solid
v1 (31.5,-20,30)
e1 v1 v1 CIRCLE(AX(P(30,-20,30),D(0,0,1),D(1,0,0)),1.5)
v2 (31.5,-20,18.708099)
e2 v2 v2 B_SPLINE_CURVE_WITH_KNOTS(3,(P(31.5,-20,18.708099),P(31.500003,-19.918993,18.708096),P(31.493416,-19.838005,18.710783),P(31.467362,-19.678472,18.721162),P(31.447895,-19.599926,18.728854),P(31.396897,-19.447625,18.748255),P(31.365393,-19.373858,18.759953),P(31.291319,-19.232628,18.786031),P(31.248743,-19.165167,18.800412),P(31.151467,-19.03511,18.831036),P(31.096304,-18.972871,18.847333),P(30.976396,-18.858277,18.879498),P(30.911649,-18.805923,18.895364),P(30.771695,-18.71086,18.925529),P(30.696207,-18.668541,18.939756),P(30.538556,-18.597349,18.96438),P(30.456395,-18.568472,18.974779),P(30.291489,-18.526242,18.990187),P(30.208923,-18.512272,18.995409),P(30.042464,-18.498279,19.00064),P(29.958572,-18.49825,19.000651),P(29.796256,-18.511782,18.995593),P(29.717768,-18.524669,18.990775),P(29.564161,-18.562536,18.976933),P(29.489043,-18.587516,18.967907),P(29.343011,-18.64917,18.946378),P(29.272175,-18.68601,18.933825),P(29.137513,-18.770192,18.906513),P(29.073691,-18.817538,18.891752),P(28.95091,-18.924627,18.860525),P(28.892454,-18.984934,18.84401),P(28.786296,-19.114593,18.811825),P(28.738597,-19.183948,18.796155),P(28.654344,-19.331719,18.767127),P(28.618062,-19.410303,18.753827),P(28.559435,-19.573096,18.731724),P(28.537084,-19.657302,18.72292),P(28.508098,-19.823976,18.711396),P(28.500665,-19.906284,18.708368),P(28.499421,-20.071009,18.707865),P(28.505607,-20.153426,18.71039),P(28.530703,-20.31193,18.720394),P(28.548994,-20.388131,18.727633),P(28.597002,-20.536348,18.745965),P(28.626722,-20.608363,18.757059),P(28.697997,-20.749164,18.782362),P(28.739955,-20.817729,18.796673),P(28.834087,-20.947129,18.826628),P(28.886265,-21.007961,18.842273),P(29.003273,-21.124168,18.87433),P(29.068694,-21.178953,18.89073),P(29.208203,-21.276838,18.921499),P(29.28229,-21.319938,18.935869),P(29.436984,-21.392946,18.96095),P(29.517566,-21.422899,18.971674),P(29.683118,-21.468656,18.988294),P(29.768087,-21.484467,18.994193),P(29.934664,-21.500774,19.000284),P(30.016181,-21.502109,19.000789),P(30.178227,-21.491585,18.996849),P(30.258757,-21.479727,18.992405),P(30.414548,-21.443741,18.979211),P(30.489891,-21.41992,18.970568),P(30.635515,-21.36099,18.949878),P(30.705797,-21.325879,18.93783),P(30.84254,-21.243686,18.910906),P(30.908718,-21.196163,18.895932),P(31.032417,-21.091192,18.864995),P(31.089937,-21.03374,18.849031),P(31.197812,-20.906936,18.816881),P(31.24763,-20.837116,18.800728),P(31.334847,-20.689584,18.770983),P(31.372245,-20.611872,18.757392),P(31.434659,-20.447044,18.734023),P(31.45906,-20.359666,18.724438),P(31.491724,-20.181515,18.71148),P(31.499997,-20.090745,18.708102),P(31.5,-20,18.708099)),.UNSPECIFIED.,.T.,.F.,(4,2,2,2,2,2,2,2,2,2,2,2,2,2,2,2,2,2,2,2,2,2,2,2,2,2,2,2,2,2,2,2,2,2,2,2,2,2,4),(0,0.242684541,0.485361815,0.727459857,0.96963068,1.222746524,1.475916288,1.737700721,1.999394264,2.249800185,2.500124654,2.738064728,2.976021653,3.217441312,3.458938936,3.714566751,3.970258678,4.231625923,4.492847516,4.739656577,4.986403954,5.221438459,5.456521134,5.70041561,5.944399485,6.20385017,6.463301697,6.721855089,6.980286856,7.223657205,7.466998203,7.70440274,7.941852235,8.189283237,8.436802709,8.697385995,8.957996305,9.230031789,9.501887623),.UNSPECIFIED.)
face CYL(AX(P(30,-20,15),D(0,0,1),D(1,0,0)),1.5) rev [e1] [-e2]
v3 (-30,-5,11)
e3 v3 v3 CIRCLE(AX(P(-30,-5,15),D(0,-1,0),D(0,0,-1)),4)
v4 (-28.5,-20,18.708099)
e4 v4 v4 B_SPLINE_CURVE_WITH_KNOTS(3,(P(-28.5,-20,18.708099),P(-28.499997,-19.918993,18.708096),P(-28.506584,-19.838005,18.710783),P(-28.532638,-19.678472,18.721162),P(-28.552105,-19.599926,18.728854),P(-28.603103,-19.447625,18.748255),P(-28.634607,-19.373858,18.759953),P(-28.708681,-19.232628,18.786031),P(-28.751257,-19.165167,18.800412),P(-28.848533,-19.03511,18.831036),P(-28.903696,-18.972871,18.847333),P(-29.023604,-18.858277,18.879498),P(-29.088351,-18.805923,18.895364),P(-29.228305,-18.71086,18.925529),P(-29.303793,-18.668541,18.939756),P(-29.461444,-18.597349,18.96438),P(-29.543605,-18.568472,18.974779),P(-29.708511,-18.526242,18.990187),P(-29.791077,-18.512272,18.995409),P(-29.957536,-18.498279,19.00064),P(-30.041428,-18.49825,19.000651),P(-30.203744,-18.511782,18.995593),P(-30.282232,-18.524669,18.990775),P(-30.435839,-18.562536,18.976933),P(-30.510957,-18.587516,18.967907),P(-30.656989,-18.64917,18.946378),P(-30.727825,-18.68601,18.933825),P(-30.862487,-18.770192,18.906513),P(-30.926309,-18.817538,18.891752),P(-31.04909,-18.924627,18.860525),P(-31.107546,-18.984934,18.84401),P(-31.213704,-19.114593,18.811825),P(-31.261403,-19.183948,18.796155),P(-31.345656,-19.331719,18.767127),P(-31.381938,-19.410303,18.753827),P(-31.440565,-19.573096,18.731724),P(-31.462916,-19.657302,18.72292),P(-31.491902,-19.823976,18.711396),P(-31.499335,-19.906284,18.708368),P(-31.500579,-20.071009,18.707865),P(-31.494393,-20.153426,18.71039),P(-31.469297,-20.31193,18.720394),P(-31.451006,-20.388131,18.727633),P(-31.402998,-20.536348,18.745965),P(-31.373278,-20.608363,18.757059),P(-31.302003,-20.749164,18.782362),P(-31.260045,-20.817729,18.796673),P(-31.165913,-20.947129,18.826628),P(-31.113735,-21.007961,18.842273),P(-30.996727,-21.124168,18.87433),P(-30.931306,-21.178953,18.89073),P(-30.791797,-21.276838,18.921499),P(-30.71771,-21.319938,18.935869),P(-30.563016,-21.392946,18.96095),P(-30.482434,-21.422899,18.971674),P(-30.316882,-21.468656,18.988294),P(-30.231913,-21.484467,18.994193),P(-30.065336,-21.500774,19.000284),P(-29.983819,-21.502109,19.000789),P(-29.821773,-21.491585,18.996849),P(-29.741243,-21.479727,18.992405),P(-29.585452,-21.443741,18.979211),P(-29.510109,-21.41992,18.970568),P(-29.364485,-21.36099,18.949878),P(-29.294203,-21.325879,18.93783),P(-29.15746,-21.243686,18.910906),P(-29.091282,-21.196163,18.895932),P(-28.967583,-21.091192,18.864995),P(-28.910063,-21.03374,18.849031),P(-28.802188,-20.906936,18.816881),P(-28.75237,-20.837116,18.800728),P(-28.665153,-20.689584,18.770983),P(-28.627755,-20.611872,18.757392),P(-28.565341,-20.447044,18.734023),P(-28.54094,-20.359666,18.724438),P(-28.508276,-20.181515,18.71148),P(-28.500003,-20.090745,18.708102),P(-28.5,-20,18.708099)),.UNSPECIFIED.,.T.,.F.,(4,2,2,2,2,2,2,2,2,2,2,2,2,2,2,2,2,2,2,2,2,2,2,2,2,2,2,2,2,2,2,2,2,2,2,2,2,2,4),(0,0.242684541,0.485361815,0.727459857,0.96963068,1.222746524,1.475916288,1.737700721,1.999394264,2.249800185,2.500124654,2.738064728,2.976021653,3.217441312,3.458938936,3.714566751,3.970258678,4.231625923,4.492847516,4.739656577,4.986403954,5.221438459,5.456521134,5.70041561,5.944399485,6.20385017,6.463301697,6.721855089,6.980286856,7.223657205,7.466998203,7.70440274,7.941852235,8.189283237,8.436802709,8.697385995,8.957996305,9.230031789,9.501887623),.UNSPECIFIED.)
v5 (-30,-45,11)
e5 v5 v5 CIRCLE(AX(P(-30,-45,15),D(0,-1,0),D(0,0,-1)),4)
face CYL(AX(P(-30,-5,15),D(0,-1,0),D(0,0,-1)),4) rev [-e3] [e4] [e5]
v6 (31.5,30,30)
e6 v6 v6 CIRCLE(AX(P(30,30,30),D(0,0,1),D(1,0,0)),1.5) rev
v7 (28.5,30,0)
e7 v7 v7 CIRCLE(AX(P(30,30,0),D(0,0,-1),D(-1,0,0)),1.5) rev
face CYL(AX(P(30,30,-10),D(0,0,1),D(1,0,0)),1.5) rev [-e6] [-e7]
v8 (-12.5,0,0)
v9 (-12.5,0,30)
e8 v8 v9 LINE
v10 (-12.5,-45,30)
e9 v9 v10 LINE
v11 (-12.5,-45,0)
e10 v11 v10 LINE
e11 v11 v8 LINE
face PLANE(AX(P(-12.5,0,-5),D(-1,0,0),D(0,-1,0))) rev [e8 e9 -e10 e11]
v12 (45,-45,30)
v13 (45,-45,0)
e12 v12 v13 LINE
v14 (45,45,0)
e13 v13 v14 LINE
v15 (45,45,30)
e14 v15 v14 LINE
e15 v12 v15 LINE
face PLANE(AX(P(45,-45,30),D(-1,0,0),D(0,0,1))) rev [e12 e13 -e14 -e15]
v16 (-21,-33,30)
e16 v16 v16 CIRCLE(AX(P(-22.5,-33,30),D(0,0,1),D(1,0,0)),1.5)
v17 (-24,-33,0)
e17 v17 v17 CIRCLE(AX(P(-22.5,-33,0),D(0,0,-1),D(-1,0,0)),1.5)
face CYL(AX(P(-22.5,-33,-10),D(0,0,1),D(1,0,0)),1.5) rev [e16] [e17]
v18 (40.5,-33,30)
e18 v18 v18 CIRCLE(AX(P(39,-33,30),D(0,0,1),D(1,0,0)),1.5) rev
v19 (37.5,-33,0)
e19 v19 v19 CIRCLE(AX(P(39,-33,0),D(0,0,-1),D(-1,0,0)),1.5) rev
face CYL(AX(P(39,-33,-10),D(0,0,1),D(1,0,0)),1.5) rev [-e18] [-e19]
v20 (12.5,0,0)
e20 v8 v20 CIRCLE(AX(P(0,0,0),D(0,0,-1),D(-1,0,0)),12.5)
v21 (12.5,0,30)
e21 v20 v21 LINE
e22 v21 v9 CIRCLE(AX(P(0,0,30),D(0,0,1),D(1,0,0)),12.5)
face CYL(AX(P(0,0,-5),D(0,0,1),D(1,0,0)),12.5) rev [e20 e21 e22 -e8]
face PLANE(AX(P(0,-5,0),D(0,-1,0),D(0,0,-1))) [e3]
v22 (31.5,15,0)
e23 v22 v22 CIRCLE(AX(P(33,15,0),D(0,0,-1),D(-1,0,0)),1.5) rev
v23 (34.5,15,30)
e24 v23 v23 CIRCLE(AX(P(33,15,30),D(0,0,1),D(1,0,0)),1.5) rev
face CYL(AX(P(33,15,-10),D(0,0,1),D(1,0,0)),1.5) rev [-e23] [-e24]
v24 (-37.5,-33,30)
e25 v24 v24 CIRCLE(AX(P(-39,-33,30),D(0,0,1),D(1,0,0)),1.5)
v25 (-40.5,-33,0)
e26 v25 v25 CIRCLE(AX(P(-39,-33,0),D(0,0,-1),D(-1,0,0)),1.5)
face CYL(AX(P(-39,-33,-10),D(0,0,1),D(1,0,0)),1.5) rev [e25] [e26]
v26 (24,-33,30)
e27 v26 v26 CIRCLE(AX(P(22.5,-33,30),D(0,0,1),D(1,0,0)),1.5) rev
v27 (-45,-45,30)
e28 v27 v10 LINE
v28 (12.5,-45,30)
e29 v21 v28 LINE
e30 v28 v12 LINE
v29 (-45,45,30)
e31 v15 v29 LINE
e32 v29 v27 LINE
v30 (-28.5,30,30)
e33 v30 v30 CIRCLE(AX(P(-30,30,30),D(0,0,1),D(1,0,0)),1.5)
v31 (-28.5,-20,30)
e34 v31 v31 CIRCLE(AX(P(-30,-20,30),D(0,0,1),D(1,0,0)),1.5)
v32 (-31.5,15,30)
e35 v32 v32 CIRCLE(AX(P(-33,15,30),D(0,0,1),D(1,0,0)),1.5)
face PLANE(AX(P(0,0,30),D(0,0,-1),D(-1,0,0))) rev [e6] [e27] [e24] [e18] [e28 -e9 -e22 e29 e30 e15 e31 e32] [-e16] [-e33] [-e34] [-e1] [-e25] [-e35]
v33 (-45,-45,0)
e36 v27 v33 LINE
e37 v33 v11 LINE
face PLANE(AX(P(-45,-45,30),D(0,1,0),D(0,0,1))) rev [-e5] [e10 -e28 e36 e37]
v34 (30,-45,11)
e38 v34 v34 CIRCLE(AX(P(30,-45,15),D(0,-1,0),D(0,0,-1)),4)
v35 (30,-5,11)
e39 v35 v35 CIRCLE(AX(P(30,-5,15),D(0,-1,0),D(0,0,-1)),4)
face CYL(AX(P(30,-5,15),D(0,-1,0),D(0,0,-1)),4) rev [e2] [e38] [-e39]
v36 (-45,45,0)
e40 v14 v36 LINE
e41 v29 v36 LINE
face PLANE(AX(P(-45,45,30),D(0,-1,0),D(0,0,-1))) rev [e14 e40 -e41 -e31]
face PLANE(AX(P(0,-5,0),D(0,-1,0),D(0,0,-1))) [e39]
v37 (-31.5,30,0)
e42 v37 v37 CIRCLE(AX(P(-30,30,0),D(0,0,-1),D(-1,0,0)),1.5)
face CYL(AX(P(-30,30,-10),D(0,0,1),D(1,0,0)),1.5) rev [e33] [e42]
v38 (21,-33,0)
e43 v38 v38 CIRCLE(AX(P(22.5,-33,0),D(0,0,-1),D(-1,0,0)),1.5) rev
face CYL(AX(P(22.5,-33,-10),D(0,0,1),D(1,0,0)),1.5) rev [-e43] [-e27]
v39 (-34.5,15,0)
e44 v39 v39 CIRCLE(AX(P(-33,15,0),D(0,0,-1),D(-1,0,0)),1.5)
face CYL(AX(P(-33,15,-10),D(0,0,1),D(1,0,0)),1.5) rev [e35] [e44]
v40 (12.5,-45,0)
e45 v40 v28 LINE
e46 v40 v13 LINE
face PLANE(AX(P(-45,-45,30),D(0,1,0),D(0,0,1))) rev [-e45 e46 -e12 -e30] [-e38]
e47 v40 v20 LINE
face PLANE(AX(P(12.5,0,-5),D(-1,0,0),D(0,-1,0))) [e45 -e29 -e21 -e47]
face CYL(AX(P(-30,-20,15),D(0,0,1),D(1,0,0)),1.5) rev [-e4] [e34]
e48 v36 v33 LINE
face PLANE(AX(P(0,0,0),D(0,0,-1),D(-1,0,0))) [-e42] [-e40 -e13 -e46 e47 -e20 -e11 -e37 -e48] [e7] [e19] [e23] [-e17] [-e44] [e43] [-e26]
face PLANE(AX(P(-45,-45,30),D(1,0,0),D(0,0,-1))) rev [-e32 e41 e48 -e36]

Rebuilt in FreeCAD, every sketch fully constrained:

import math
import FreeCAD as App
import Part
import Sketcher
from FreeCAD import Vector


def add_polygon(sketch, points):
    """Adds a closed chain of lines whose ends are joined by coincident constraints."""
    first, n = sketch.GeometryCount, len(points)
    for a, b in zip(points, points[1:] + points[:1]):
        sketch.addGeometry(Part.LineSegment(App.Vector(*a, 0), App.Vector(*b, 0)), False)
    for i in range(n):
        sketch.addConstraint(Sketcher.Constraint("Coincident", first + i, 2, first + (i + 1) % n, 1))

doc = App.newDocument("Part")
body = doc.addObject("PartDesign::Body", "Body")

sketch1 = body.newObject("Sketcher::SketchObject", "Sketch")
sketch1.AttachmentSupport = (doc.getObject("XY_Plane"), [""])
sketch1.MapMode = "FlatFace"
add_polygon(sketch1, [(-45, 45), (-45, -45), (45, -45), (45, 45)])
sketch1.addConstraint(Sketcher.Constraint("Vertical", 0))
sketch1.addConstraint(Sketcher.Constraint("Horizontal", 1))
sketch1.addConstraint(Sketcher.Constraint("Vertical", 2))
sketch1.addConstraint(Sketcher.Constraint("Horizontal", 3))
sketch1.addConstraint(Sketcher.Constraint("Symmetric", 0, 2, 2, 2, -1, 1))
sketch1.addConstraint(Sketcher.Constraint("Equal", 3, 0))
sketch1.addConstraint(Sketcher.Constraint("DistanceX", 1, 1, 1, 2, 90.0))
pad1 = body.newObject("PartDesign::Pad", "Pad")
pad1.Profile = sketch1
pad1.Length = 30

sketch2 = body.newObject("Sketcher::SketchObject", "Sketch001")
sketch2.AttachmentSupport = (doc.getObject("XZ_Plane"), [""])
sketch2.MapMode = "FlatFace"
sketch2.AttachmentOffset = App.Placement(Vector(0, 0, 45), App.Rotation())
sketch2.addGeometry(Part.Circle(Vector(-30, 15, 0), Vector(0, 0, 1), 4), False)
sketch2.addGeometry(Part.Circle(Vector(30, 15, 0), Vector(0, 0, 1), 4), False)
sketch2.addConstraint(Sketcher.Constraint("Equal", 0, 1))
sketch2.addConstraint(Sketcher.Constraint("Symmetric", 0, 3, 1, 3, -2))
sketch2.addConstraint(Sketcher.Constraint("Diameter", 0, 8.0))
sketch2.addConstraint(Sketcher.Constraint("DistanceX", 0, 3, -1, 1, 30.0))
sketch2.addConstraint(Sketcher.Constraint("DistanceY", -1, 1, 0, 3, 15.0))
pocket1 = body.newObject("PartDesign::Pocket", "Pocket")
pocket1.Profile = sketch2
pocket1.Length = 40

sketch3 = body.newObject("Sketcher::SketchObject", "Sketch002")
sketch3.AttachmentSupport = (doc.getObject("XY_Plane"), [""])
sketch3.MapMode = "FlatFace"
sketch3.AttachmentOffset = App.Placement(Vector(0, 0, 30), App.Rotation())
sketch3.addGeometry(Part.LineSegment(Vector(12, -45, 0), Vector(12, 0, 0)), False)
sketch3.addGeometry(Part.ArcOfCircle(Part.Circle(Vector(0, 0, 0), Vector(0, 0, 1), 12), math.radians(0), math.radians(180)), False)
sketch3.addGeometry(Part.LineSegment(Vector(-12, 0, 0), Vector(-12, -45, 0)), False)
sketch3.addGeometry(Part.LineSegment(Vector(-12, -45, 0), Vector(12, -45, 0)), False)
sketch3.addConstraint(Sketcher.Constraint("Tangent", 0, 2, 1, 1))
sketch3.addConstraint(Sketcher.Constraint("Tangent", 1, 2, 2, 1))
sketch3.addConstraint(Sketcher.Constraint("Coincident", 2, 2, 3, 1))
sketch3.addConstraint(Sketcher.Constraint("Coincident", 3, 2, 0, 1))
sketch3.addConstraint(Sketcher.Constraint("Vertical", 0))
sketch3.addConstraint(Sketcher.Constraint("Vertical", 2))
sketch3.addConstraint(Sketcher.Constraint("Horizontal", 3))
sketch3.addConstraint(Sketcher.Constraint("Coincident", 1, 3, -1, 1))
sketch3.addConstraint(Sketcher.Constraint("Radius", 1, 12.5))
sketch3.addConstraint(Sketcher.Constraint("DistanceY", 0, 1, 0, 2, 45.0))
pocket2 = body.newObject("PartDesign::Pocket", "Pocket001")
pocket2.Profile = sketch3
pocket2.Length = 35

sketch4 = body.newObject("Sketcher::SketchObject", "Sketch003")
sketch4.AttachmentSupport = (doc.getObject("XY_Plane"), [""])
sketch4.MapMode = "FlatFace"
sketch4.AttachmentOffset = App.Placement(Vector(0, 0, 30), App.Rotation())
sketch4.addGeometry(Part.Circle(Vector(-30, 30, 0), Vector(0, 0, 1), 1.5), False)
sketch4.addGeometry(Part.Circle(Vector(-33, 15, 0), Vector(0, 0, 1), 1.5), False)
sketch4.addGeometry(Part.Circle(Vector(30, 30, 0), Vector(0, 0, 1), 1.5), False)
sketch4.addGeometry(Part.Circle(Vector(33, 15, 0), Vector(0, 0, 1), 1.5), False)
sketch4.addGeometry(Part.Circle(Vector(39, -33, 0), Vector(0, 0, 1), 1.5), False)
sketch4.addGeometry(Part.Circle(Vector(22.5, -33, 0), Vector(0, 0, 1), 1.5), False)
sketch4.addGeometry(Part.Circle(Vector(-22.5, -33, 0), Vector(0, 0, 1), 1.5), False)
sketch4.addGeometry(Part.Circle(Vector(-39, -33, 0), Vector(0, 0, 1), 1.5), False)
sketch4.addConstraint(Sketcher.Constraint("Equal", 0, 1))
sketch4.addConstraint(Sketcher.Constraint("Equal", 1, 2))
sketch4.addConstraint(Sketcher.Constraint("Equal", 2, 3))
sketch4.addConstraint(Sketcher.Constraint("Equal", 3, 4))
sketch4.addConstraint(Sketcher.Constraint("Equal", 4, 5))
sketch4.addConstraint(Sketcher.Constraint("Equal", 5, 6))
sketch4.addConstraint(Sketcher.Constraint("Equal", 6, 7))
sketch4.addConstraint(Sketcher.Constraint("Symmetric", 0, 3, 2, 3, -2))
sketch4.addConstraint(Sketcher.Constraint("Symmetric", 1, 3, 3, 3, -2))
sketch4.addConstraint(Sketcher.Constraint("Symmetric", 5, 3, 6, 3, -2))
sketch4.addConstraint(Sketcher.Constraint("Symmetric", 4, 3, 7, 3, -2))
sketch4.addConstraint(Sketcher.Constraint("Horizontal", 4, 3, 5, 3))
sketch4.addConstraint(Sketcher.Constraint("Diameter", 0, 3.0))
sketch4.addConstraint(Sketcher.Constraint("DistanceX", 0, 3, -1, 1, 30.0))
sketch4.addConstraint(Sketcher.Constraint("DistanceY", -1, 1, 0, 3, 30.0))
sketch4.addConstraint(Sketcher.Constraint("DistanceX", 1, 3, -1, 1, 33.0))
sketch4.addConstraint(Sketcher.Constraint("DistanceY", -1, 1, 1, 3, 15.0))
sketch4.addConstraint(Sketcher.Constraint("DistanceX", -1, 1, 4, 3, 39.0))
sketch4.addConstraint(Sketcher.Constraint("DistanceY", 4, 3, -1, 1, 33.0))
sketch4.addConstraint(Sketcher.Constraint("DistanceX", 6, 3, 5, 3, 45.0))
pocket3 = body.newObject("PartDesign::Pocket", "Pocket002")
pocket3.Profile = sketch4
pocket3.Length = 40

sketch5 = body.newObject("Sketcher::SketchObject", "Sketch004")
sketch5.AttachmentSupport = (doc.getObject("XY_Plane"), [""])
sketch5.MapMode = "FlatFace"
sketch5.AttachmentOffset = App.Placement(Vector(0, 0, 30), App.Rotation())
sketch5.addGeometry(Part.Circle(Vector(-30, -20, 0), Vector(0, 0, 1), 1.5), False)
sketch5.addGeometry(Part.Circle(Vector(30, -20, 0), Vector(0, 0, 1), 1.5), False)
sketch5.addConstraint(Sketcher.Constraint("Equal", 0, 1))
sketch5.addConstraint(Sketcher.Constraint("Symmetric", 0, 3, 1, 3, -2))
sketch5.addConstraint(Sketcher.Constraint("Diameter", 0, 3.0))
sketch5.addConstraint(Sketcher.Constraint("DistanceX", 0, 3, -1, 1, 30.0))
sketch5.addConstraint(Sketcher.Constraint("DistanceY", 0, 3, -1, 1, 20.0))
pocket4 = body.newObject("PartDesign::Pocket", "Pocket003")
pocket4.Profile = sketch5
pocket4.Length = 15

doc.recompute()
